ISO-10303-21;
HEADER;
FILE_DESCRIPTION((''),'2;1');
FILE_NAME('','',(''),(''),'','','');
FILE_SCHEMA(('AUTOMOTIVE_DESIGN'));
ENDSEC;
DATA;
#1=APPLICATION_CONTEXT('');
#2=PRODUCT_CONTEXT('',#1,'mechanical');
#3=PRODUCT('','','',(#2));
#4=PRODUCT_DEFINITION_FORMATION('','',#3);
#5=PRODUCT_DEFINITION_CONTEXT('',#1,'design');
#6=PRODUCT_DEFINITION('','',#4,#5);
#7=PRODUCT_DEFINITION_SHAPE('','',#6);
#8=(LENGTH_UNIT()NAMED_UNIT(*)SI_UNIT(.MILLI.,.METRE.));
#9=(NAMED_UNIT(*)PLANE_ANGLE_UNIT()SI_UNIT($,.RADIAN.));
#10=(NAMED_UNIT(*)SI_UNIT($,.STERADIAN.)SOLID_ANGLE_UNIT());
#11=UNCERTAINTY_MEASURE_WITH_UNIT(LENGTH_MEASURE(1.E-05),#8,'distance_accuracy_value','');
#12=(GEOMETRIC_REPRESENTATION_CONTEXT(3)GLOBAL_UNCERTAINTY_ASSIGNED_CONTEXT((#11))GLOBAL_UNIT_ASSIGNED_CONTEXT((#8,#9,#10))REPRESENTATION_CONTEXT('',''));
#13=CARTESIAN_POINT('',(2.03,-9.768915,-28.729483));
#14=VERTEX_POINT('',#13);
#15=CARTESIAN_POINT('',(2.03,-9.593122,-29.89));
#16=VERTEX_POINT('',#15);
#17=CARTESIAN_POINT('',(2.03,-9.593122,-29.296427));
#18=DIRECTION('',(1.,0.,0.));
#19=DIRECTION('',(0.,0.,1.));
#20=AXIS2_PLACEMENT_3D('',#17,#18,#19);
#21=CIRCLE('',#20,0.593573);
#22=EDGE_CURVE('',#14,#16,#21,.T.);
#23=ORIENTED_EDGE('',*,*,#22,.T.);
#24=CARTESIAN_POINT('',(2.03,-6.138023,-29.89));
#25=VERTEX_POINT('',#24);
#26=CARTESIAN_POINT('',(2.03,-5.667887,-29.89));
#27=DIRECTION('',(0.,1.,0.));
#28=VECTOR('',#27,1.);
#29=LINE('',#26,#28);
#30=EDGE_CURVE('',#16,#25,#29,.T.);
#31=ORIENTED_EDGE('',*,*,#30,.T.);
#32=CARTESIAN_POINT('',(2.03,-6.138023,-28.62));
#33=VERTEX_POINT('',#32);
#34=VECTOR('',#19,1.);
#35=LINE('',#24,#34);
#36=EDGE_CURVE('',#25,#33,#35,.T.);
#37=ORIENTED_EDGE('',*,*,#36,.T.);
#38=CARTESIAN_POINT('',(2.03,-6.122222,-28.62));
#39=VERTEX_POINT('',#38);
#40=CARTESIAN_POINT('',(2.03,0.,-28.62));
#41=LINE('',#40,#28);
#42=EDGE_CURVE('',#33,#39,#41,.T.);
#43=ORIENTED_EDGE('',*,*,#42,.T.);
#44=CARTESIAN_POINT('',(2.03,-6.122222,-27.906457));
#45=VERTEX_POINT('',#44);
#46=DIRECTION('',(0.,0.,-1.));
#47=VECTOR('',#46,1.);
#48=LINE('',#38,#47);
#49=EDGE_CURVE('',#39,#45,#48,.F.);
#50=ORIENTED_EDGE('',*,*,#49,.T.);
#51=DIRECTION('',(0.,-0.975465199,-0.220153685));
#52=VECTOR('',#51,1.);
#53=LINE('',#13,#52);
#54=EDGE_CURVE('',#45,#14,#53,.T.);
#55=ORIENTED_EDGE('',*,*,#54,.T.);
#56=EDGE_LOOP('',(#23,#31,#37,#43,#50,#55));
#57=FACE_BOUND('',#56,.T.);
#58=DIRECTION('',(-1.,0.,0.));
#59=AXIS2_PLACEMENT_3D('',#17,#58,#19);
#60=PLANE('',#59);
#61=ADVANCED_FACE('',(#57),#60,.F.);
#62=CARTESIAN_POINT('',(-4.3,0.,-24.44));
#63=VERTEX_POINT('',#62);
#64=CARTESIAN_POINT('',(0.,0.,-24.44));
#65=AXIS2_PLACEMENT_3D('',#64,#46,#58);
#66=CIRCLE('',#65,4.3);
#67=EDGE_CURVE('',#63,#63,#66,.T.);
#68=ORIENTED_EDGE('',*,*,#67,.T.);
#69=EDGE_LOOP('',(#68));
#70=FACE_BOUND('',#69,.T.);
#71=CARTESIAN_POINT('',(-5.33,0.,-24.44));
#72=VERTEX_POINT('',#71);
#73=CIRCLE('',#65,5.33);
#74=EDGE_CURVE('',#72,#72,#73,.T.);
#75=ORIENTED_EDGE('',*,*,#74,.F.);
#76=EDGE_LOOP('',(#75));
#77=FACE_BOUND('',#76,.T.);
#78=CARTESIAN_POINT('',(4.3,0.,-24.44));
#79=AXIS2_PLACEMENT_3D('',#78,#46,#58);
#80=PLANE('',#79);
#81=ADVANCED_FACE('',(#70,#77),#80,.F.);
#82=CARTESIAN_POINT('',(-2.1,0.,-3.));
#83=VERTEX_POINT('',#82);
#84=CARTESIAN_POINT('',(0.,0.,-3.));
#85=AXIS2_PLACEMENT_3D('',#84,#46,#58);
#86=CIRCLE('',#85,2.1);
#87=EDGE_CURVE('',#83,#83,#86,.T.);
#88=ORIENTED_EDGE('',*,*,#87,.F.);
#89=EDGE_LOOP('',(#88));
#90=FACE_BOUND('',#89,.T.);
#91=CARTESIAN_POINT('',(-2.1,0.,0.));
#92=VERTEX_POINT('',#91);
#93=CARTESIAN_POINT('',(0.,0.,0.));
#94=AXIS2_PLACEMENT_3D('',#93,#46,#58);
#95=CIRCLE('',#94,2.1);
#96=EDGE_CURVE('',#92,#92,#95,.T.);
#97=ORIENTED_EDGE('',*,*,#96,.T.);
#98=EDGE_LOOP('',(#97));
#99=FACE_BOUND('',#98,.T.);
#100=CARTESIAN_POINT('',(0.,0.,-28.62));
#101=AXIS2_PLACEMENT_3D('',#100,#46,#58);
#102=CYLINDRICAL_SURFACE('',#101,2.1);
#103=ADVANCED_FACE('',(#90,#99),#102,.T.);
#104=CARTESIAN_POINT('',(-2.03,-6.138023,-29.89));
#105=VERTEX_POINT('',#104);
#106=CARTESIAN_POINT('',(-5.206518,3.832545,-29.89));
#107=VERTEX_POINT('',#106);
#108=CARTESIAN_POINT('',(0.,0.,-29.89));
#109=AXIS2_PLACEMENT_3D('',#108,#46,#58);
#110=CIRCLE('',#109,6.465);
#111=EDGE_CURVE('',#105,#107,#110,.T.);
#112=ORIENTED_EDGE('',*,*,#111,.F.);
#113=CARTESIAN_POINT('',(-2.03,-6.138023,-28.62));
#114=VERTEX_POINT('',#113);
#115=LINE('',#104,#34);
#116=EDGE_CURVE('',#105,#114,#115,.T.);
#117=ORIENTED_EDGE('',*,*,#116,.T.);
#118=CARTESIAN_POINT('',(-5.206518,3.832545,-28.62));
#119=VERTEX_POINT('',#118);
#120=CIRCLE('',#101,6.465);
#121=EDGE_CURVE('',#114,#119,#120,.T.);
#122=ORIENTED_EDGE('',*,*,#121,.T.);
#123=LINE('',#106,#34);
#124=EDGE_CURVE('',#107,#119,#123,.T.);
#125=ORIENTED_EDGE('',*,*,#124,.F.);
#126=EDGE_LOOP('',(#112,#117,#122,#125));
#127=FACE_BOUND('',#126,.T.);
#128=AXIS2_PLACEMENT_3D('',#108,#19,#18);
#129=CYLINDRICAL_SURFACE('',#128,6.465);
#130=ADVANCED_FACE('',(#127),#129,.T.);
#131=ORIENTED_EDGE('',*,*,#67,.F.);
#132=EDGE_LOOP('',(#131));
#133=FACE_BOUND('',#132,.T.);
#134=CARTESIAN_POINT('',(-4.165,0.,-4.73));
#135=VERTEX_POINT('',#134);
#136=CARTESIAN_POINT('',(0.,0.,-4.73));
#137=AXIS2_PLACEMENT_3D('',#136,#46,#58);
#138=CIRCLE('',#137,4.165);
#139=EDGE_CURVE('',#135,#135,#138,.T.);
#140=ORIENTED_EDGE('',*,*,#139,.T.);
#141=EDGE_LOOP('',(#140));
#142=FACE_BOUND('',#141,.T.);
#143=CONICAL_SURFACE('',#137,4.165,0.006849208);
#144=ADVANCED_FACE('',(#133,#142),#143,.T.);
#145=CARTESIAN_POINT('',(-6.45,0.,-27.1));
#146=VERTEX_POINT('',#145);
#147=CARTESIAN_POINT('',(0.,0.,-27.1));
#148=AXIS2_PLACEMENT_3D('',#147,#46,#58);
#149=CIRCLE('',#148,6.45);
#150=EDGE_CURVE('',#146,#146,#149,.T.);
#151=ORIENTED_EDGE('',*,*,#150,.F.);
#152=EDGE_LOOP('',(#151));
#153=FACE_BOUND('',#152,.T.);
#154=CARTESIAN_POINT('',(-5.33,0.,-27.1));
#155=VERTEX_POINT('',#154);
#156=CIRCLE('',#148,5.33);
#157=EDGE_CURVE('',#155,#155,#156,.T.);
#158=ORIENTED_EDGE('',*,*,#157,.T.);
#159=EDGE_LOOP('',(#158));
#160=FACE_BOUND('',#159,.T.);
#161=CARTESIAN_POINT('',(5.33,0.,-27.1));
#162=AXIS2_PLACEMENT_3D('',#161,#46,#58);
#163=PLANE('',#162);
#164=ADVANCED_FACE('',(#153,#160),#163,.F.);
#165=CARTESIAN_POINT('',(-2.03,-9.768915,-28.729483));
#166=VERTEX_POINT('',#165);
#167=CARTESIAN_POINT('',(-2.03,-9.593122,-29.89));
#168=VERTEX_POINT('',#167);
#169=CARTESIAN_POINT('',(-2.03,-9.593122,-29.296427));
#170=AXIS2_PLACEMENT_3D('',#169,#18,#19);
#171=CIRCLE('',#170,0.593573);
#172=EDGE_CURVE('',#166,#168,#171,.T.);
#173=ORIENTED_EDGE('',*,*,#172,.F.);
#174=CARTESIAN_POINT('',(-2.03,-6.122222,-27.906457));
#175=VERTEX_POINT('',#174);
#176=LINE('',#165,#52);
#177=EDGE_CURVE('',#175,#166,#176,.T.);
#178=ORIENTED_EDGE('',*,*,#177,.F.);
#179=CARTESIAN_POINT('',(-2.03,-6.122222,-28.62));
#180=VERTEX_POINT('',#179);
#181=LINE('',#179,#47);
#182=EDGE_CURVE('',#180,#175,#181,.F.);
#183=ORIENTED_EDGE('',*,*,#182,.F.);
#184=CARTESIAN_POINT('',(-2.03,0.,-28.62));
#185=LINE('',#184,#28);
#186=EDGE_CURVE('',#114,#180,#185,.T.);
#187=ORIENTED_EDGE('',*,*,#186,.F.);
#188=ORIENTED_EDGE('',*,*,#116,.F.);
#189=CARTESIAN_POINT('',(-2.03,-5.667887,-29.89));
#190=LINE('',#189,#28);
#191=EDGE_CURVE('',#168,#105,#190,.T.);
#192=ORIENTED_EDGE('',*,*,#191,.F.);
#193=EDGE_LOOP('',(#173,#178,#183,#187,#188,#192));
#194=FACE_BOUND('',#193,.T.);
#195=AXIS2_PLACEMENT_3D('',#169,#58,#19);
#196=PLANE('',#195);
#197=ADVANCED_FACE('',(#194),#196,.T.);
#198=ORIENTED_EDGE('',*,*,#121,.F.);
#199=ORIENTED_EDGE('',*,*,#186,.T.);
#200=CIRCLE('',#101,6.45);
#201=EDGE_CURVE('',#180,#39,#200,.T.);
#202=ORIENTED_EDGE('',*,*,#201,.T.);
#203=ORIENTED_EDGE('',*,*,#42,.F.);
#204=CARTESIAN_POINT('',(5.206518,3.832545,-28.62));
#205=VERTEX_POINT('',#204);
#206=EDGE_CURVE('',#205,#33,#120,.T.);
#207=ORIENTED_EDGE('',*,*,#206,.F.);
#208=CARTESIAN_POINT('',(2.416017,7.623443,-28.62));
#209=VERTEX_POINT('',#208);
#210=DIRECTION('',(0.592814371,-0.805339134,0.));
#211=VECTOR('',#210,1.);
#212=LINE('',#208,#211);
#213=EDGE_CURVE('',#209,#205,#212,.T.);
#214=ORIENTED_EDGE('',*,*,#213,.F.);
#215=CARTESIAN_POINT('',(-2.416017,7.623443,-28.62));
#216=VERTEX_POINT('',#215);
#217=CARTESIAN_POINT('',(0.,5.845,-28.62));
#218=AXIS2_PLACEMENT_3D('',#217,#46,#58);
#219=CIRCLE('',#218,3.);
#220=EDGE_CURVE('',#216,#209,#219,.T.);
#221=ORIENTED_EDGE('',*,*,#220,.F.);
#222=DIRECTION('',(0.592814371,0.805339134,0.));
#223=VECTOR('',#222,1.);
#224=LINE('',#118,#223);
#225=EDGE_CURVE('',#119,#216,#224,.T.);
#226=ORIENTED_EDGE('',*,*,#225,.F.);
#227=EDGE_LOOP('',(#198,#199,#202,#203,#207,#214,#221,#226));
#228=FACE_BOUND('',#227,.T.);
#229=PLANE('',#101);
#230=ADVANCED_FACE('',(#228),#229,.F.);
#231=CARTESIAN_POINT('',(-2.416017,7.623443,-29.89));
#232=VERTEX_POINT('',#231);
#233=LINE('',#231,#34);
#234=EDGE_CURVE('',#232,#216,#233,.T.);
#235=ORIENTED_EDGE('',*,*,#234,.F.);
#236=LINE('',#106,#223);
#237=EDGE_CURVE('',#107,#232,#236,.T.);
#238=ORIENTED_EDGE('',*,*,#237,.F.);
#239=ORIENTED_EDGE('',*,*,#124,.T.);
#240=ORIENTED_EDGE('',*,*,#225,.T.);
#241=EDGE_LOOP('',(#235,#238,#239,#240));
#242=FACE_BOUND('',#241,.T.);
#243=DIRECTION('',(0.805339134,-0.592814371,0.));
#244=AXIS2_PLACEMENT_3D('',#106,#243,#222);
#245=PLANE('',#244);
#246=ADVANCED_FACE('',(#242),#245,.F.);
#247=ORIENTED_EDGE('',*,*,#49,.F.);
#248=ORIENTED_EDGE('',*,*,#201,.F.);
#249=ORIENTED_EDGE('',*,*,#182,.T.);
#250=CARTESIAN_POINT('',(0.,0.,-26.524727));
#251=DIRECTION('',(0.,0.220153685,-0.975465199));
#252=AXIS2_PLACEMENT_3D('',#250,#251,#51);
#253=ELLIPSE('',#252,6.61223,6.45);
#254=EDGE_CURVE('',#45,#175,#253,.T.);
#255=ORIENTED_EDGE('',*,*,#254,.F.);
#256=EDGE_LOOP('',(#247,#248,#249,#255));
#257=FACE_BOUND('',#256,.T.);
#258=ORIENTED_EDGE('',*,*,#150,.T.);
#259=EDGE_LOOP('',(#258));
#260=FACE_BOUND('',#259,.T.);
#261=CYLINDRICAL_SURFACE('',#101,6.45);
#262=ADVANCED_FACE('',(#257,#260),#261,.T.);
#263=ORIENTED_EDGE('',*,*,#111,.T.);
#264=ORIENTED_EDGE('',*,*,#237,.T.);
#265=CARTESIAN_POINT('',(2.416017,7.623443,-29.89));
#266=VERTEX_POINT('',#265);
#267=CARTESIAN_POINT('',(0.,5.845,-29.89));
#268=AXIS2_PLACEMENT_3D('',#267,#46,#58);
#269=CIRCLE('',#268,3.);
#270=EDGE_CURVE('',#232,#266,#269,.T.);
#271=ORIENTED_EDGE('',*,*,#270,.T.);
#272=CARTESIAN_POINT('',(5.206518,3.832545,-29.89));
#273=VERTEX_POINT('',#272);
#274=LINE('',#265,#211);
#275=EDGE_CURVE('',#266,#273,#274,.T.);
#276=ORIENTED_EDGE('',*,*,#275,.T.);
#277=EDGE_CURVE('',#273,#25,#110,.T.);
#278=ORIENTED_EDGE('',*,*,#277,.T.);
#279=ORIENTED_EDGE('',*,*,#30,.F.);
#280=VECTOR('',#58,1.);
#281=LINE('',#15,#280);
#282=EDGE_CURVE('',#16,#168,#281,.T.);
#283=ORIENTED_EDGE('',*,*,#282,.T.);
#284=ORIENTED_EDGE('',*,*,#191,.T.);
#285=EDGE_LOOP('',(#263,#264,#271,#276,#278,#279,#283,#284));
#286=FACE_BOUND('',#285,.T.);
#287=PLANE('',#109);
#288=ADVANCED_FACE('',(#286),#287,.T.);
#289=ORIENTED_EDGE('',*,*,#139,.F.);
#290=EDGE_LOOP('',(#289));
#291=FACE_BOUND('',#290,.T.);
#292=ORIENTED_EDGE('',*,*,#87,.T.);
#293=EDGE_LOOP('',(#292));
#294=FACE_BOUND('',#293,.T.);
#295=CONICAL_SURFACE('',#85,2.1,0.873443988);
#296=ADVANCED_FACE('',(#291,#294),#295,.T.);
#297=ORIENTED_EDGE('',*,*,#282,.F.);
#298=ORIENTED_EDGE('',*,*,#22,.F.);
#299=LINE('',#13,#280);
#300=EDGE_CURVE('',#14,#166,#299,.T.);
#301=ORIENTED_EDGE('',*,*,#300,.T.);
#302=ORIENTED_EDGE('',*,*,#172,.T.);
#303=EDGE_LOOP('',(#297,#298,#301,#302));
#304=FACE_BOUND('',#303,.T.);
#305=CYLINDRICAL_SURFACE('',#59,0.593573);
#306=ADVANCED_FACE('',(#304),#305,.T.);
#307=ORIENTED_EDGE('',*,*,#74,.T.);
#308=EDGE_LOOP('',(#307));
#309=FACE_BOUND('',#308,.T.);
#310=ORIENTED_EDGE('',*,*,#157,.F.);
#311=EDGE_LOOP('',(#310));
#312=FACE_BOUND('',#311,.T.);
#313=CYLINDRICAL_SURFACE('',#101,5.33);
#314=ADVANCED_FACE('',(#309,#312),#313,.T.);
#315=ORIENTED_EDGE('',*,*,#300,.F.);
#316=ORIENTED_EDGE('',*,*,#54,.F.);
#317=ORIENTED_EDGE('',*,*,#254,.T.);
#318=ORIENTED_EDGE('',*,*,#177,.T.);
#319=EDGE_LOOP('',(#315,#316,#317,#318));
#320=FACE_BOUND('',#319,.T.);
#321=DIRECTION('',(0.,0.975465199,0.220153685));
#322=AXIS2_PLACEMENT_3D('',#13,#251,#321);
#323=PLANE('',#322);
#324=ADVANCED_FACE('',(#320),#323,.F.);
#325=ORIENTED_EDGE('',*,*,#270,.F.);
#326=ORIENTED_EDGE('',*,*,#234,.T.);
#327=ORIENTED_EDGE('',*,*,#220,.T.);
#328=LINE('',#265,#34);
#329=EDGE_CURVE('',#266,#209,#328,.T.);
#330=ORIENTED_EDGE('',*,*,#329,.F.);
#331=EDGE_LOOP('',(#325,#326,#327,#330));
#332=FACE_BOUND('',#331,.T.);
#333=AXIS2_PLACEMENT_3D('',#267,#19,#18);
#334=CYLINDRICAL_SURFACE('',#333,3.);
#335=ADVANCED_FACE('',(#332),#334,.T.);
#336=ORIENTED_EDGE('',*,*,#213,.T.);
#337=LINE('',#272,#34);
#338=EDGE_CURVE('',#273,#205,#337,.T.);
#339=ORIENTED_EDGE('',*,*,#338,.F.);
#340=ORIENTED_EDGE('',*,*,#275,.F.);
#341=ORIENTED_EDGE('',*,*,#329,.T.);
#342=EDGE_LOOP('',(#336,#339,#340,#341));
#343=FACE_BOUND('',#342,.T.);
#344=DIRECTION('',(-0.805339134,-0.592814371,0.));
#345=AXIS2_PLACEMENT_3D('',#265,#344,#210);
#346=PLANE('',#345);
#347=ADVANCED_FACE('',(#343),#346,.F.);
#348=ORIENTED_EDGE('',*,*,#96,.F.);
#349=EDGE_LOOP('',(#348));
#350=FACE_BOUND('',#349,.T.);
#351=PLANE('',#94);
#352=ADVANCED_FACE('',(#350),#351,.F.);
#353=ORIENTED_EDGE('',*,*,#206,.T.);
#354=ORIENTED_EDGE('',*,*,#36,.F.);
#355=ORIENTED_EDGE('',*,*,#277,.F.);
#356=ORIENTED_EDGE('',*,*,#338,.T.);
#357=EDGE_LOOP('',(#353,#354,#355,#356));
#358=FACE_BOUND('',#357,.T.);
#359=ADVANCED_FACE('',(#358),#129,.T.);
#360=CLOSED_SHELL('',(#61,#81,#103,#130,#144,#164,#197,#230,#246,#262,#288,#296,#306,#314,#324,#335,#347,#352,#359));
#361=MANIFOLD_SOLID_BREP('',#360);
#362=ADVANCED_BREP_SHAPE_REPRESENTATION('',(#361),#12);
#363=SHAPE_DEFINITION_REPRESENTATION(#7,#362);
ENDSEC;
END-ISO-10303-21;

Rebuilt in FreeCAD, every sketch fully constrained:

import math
import FreeCAD as App
import Part
import Sketcher

V = App.Vector
Q = App.Units.Quantity


def add_polygon(sketch, points):
    """Adds a closed chain of lines whose ends are joined by coincident constraints."""
    first, n = sketch.GeometryCount, len(points)
    for a, b in zip(points, points[1:] + points[:1]):
        sketch.addGeometry(Part.LineSegment(App.Vector(*a, 0), App.Vector(*b, 0)), False)
    for i in range(n):
        sketch.addConstraint(Sketcher.Constraint("Coincident", first + i, 2, first + (i + 1) % n, 1))

doc = App.newDocument("Part")
body = doc.addObject("PartDesign::Body", "Body")

sketch1 = doc.addObject("Sketcher::SketchObject", "Sketch")
body.addObject(sketch1)
sketch1.AttachmentSupport = (doc.XZ_Plane, [""])
sketch1.MapMode = "FlatFace"
add_polygon(sketch1, [(0, 0), (2.1, 0), (2.1, -3), (4.2, -4.7), (4.3, -24.4), (5.3, -24.4), (5.3, -27.1), (6.5, -27.1), (6.5, -28.6), (0, -28.6)])
sketch1.addConstraint([
    Sketcher.Constraint("Horizontal", 0),
    Sketcher.Constraint("Vertical", 1),
    Sketcher.Constraint("Horizontal", 4),
    Sketcher.Constraint("Vertical", 5),
    Sketcher.Constraint("Horizontal", 6),
    Sketcher.Constraint("Vertical", 7),
    Sketcher.Constraint("Horizontal", 8),
    Sketcher.Constraint("Vertical", 9),
    Sketcher.Constraint("Coincident", 9, 2, -1, 1),
    Sketcher.Constraint("DistanceY", 1, 2, 1, 1, Q("3 mm")),
    Sketcher.Constraint("DistanceX", 0, 1, 0, 2, Q("2.1 mm")),
    Sketcher.Constraint("DistanceX", 4, 1, 4, 2, Q("1.03 mm")),
    Sketcher.Constraint("DistanceX", 6, 1, 6, 2, Q("1.12 mm")),
    Sketcher.Constraint("DistanceX", 8, 2, 8, 1, Q("6.45 mm")),
    Sketcher.Constraint("DistanceY", 5, 2, 5, 1, Q("2.66 mm")),
    Sketcher.Constraint("DistanceY", 7, 2, 7, 1, Q("1.52 mm")),
    Sketcher.Constraint("DistanceY", 9, 1, 9, 2, Q("28.62 mm")),
    Sketcher.Constraint("DistanceY", 2, 2, -1, 1, Q("4.73 mm")),
    Sketcher.Constraint("DistanceX", -1, 1, 2, 2, Q("4.165 mm")),
])
revolution = doc.addObject("PartDesign::Revolution", "Revolution")
body.addObject(revolution)
revolution.Profile = sketch1
revolution.ReferenceAxis = (sketch1, ["V_Axis"])
revolution.Angle = 360

sketch2 = doc.addObject("Sketcher::SketchObject", "Sketch001")
body.addObject(sketch2)
sketch2.AttachmentSupport = (doc.XY_Plane, [""])
sketch2.MapMode = "FlatFace"
sketch2.AttachmentOffset = App.Placement(V(0, 0, -28.62), App.Rotation())
sketch2.addGeometry([
    Part.LineSegment(V(-5.2, 3.8, 0), V(-2.4, 7.6, 0)),
    Part.ArcOfCircle(Part.Circle(V(0, 5.8, 0), V(0, 0, 1), 3), math.radians(36), math.radians(144)),
    Part.LineSegment(V(2.4, 7.6, 0), V(5.2, 3.8, 0)),
    Part.ArcOfCircle(Part.Circle(V(0, 0, 0), V(0, 0, 1), 6.5), math.radians(144), math.radians(396)),
], False)
sketch2.addConstraint([
    Sketcher.Constraint("Tangent", 0, 2, 1, 2),
    Sketcher.Constraint("Tangent", 1, 1, 2, 1),
    Sketcher.Constraint("Tangent", 2, 2, 3, 2),
    Sketcher.Constraint("Tangent", 3, 1, 0, 1),
    Sketcher.Constraint("Coincident", 3, 3, -1, 1),
    Sketcher.Constraint("PointOnObject", 1, 3, -2),
    Sketcher.Constraint("Radius", 1, Q("3 mm")),
    Sketcher.Constraint("Radius", 3, Q("6.465 mm")),
    Sketcher.Constraint("DistanceY", -1, 1, 1, 3, Q("5.845 mm")),
])
pad1 = doc.addObject("PartDesign::Pad", "Pad")
body.addObject(pad1)
pad1.Profile = sketch2
pad1.Length = 1.27
pad1.Reversed = True

sketch3 = doc.addObject("Sketcher::SketchObject", "Sketch002")
body.addObject(sketch3)
sketch3.AttachmentSupport = (doc.YZ_Plane, [""])
sketch3.MapMode = "FlatFace"
sketch3.addGeometry([
    Part.LineSegment(V(-9.6, -29.9, 0), V(-5.7, -29.9, 0)),
    Part.LineSegment(V(-5.7, -29.9, 0), V(-5.7, -27.8, 0)),
    Part.LineSegment(V(-5.7, -27.8, 0), V(-9.8, -28.7, 0)),
    Part.ArcOfCircle(Part.Circle(V(-9.6, -29.3, 0), V(0, 0, 1), 0.6), math.radians(107), math.radians(270)),
], False)
sketch3.addConstraint([
    Sketcher.Constraint("Coincident", 0, 2, 1, 1),
    Sketcher.Constraint("Coincident", 1, 2, 2, 1),
    Sketcher.Constraint("Coincident", 2, 2, 3, 1),
    Sketcher.Constraint("Tangent", 3, 2, 0, 1),
    Sketcher.Constraint("Horizontal", 0),
    Sketcher.Constraint("Vertical", 1),
    Sketcher.Constraint("DistanceY", 0, 2, -1, 1, Q("29.89 mm")),
    Sketcher.Constraint("Radius", 3, Q("0.593573 mm")),
    Sketcher.Constraint("DistanceX", 0, 1, 0, 2, Q("3.925234 mm")),
    Sketcher.Constraint("DistanceY", 1, 1, 1, 2, Q("2.086082 mm")),
    Sketcher.Constraint("DistanceX", 3, 3, -1, 1, Q("9.593122 mm")),
    Sketcher.Constraint("Distance", 2, Q("4.204176 mm")),
])
pad2 = doc.addObject("PartDesign::Pad", "Pad001")
body.addObject(pad2)
pad2.Profile = sketch3
pad2.Length = 4.06
pad2.Midplane = True

doc.recompute()
